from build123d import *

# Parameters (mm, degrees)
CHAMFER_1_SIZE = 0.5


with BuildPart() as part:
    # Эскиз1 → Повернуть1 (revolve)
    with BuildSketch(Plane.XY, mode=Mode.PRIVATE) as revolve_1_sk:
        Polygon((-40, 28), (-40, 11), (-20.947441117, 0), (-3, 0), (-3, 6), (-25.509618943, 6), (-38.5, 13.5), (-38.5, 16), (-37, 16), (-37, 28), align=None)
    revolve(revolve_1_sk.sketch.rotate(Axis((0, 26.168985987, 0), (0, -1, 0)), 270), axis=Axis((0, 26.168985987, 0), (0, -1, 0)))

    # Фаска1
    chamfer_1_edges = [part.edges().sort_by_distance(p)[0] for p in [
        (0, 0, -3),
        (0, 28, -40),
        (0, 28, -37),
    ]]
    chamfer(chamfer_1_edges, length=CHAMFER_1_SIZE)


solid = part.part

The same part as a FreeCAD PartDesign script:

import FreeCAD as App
import Part
import Sketcher
Q = App.Units.Quantity


def edges_at(feature, points):
    """Names of the edges that pass closest to the given points."""
    edges = feature.Shape.Edges
    near = lambda p: min(range(len(edges)), key=lambda i: edges[i].distToShape(Part.Vertex(*p))[0])
    return sorted({f"Edge{near(p) + 1}" for p in points})

doc = App.newDocument("Part")
body = doc.addObject("PartDesign::Body", "Body")

sketch1 = body.newObject("Sketcher::SketchObject", "Sketch")
sketch1.AttachmentSupport = (doc.getObject("XY_Plane"), [""])
sketch1.MapMode = "FlatFace"
sketch1.addGeometry([
    Part.LineSegment(App.Vector(-40, 28, 0), App.Vector(-40, 11, 0)),
    Part.LineSegment(App.Vector(-40, 11, 0), App.Vector(-20.9, 0, 0)),
    Part.LineSegment(App.Vector(-20.9, 0, 0), App.Vector(-3, 0, 0)),
    Part.LineSegment(App.Vector(-3, 0, 0), App.Vector(-3, 6, 0)),
    Part.LineSegment(App.Vector(-3, 6, 0), App.Vector(-25.5, 6, 0)),
    Part.LineSegment(App.Vector(-25.5, 6, 0), App.Vector(-38.5, 13.5, 0)),
    Part.LineSegment(App.Vector(-38.5, 13.5, 0), App.Vector(-38.5, 16, 0)),
    Part.LineSegment(App.Vector(-38.5, 16, 0), App.Vector(-37, 16, 0)),
    Part.LineSegment(App.Vector(-37, 16, 0), App.Vector(-37, 28, 0)),
    Part.LineSegment(App.Vector(-37, 28, 0), App.Vector(-40, 28, 0)),
], False)
sketch1.addConstraint([
    Sketcher.Constraint("Coincident", 0, 2, 1, 1),
    Sketcher.Constraint("Coincident", 1, 2, 2, 1),
    Sketcher.Constraint("Coincident", 2, 2, 3, 1),
    Sketcher.Constraint("Coincident", 3, 2, 4, 1),
    Sketcher.Constraint("Coincident", 4, 2, 5, 1),
    Sketcher.Constraint("Coincident", 5, 2, 6, 1),
    Sketcher.Constraint("Coincident", 6, 2, 7, 1),
    Sketcher.Constraint("Coincident", 7, 2, 8, 1),
    Sketcher.Constraint("Coincident", 8, 2, 9, 1),
    Sketcher.Constraint("Coincident", 9, 2, 0, 1),
    Sketcher.Constraint("Vertical", 0),
    Sketcher.Constraint("Horizontal", 2),
    Sketcher.Constraint("Vertical", 3),
    Sketcher.Constraint("Horizontal", 4),
    Sketcher.Constraint("Vertical", 6),
    Sketcher.Constraint("Horizontal", 7),
    Sketcher.Constraint("Vertical", 8),
    Sketcher.Constraint("Horizontal", 9),
    Sketcher.Constraint("PointOnObject", 1, 2, -1),
    Sketcher.Constraint("Parallel", 1, 5),
    Sketcher.Constraint("DistanceX", 9, 2, 9, 1, Q("3 mm")),
    Sketcher.Constraint("DistanceY", 0, 2, 0, 1, Q("17 mm")),
    Sketcher.Constraint("DistanceY", 3, 1, 3, 2, Q("6 mm")),
    Sketcher.Constraint("DistanceY", 8, 1, 8, 2, Q("12 mm")),
    Sketcher.Constraint("Angle", 1, Q("-30 deg")),
    Sketcher.Constraint("Distance", 1, Q("22 mm")),
    Sketcher.Constraint("Distance", 5, Q("15 mm")),
    Sketcher.Constraint("DistanceX", 7, 1, 7, 2, Q("1.5 mm")),
    Sketcher.Constraint("DistanceX", 0, 2, -1, 1, Q("40 mm")),
    Sketcher.Constraint("DistanceX", 2, 2, -1, 1, Q("3 mm")),
])
revolution = body.newObject("PartDesign::Revolution", "Revolution")
revolution.Profile = sketch1
revolution.ReferenceAxis = (sketch1, ["V_Axis"])
revolution.Angle = 360
doc.recompute()

chamfer = body.newObject("PartDesign::Chamfer", "Chamfer")
chamfer.Base = (revolution, edges_at(revolution, [(0, 0, -3), (0, 28, -40), (0, 28, -37)]))
chamfer.Size = 0.5

doc.recompute()
